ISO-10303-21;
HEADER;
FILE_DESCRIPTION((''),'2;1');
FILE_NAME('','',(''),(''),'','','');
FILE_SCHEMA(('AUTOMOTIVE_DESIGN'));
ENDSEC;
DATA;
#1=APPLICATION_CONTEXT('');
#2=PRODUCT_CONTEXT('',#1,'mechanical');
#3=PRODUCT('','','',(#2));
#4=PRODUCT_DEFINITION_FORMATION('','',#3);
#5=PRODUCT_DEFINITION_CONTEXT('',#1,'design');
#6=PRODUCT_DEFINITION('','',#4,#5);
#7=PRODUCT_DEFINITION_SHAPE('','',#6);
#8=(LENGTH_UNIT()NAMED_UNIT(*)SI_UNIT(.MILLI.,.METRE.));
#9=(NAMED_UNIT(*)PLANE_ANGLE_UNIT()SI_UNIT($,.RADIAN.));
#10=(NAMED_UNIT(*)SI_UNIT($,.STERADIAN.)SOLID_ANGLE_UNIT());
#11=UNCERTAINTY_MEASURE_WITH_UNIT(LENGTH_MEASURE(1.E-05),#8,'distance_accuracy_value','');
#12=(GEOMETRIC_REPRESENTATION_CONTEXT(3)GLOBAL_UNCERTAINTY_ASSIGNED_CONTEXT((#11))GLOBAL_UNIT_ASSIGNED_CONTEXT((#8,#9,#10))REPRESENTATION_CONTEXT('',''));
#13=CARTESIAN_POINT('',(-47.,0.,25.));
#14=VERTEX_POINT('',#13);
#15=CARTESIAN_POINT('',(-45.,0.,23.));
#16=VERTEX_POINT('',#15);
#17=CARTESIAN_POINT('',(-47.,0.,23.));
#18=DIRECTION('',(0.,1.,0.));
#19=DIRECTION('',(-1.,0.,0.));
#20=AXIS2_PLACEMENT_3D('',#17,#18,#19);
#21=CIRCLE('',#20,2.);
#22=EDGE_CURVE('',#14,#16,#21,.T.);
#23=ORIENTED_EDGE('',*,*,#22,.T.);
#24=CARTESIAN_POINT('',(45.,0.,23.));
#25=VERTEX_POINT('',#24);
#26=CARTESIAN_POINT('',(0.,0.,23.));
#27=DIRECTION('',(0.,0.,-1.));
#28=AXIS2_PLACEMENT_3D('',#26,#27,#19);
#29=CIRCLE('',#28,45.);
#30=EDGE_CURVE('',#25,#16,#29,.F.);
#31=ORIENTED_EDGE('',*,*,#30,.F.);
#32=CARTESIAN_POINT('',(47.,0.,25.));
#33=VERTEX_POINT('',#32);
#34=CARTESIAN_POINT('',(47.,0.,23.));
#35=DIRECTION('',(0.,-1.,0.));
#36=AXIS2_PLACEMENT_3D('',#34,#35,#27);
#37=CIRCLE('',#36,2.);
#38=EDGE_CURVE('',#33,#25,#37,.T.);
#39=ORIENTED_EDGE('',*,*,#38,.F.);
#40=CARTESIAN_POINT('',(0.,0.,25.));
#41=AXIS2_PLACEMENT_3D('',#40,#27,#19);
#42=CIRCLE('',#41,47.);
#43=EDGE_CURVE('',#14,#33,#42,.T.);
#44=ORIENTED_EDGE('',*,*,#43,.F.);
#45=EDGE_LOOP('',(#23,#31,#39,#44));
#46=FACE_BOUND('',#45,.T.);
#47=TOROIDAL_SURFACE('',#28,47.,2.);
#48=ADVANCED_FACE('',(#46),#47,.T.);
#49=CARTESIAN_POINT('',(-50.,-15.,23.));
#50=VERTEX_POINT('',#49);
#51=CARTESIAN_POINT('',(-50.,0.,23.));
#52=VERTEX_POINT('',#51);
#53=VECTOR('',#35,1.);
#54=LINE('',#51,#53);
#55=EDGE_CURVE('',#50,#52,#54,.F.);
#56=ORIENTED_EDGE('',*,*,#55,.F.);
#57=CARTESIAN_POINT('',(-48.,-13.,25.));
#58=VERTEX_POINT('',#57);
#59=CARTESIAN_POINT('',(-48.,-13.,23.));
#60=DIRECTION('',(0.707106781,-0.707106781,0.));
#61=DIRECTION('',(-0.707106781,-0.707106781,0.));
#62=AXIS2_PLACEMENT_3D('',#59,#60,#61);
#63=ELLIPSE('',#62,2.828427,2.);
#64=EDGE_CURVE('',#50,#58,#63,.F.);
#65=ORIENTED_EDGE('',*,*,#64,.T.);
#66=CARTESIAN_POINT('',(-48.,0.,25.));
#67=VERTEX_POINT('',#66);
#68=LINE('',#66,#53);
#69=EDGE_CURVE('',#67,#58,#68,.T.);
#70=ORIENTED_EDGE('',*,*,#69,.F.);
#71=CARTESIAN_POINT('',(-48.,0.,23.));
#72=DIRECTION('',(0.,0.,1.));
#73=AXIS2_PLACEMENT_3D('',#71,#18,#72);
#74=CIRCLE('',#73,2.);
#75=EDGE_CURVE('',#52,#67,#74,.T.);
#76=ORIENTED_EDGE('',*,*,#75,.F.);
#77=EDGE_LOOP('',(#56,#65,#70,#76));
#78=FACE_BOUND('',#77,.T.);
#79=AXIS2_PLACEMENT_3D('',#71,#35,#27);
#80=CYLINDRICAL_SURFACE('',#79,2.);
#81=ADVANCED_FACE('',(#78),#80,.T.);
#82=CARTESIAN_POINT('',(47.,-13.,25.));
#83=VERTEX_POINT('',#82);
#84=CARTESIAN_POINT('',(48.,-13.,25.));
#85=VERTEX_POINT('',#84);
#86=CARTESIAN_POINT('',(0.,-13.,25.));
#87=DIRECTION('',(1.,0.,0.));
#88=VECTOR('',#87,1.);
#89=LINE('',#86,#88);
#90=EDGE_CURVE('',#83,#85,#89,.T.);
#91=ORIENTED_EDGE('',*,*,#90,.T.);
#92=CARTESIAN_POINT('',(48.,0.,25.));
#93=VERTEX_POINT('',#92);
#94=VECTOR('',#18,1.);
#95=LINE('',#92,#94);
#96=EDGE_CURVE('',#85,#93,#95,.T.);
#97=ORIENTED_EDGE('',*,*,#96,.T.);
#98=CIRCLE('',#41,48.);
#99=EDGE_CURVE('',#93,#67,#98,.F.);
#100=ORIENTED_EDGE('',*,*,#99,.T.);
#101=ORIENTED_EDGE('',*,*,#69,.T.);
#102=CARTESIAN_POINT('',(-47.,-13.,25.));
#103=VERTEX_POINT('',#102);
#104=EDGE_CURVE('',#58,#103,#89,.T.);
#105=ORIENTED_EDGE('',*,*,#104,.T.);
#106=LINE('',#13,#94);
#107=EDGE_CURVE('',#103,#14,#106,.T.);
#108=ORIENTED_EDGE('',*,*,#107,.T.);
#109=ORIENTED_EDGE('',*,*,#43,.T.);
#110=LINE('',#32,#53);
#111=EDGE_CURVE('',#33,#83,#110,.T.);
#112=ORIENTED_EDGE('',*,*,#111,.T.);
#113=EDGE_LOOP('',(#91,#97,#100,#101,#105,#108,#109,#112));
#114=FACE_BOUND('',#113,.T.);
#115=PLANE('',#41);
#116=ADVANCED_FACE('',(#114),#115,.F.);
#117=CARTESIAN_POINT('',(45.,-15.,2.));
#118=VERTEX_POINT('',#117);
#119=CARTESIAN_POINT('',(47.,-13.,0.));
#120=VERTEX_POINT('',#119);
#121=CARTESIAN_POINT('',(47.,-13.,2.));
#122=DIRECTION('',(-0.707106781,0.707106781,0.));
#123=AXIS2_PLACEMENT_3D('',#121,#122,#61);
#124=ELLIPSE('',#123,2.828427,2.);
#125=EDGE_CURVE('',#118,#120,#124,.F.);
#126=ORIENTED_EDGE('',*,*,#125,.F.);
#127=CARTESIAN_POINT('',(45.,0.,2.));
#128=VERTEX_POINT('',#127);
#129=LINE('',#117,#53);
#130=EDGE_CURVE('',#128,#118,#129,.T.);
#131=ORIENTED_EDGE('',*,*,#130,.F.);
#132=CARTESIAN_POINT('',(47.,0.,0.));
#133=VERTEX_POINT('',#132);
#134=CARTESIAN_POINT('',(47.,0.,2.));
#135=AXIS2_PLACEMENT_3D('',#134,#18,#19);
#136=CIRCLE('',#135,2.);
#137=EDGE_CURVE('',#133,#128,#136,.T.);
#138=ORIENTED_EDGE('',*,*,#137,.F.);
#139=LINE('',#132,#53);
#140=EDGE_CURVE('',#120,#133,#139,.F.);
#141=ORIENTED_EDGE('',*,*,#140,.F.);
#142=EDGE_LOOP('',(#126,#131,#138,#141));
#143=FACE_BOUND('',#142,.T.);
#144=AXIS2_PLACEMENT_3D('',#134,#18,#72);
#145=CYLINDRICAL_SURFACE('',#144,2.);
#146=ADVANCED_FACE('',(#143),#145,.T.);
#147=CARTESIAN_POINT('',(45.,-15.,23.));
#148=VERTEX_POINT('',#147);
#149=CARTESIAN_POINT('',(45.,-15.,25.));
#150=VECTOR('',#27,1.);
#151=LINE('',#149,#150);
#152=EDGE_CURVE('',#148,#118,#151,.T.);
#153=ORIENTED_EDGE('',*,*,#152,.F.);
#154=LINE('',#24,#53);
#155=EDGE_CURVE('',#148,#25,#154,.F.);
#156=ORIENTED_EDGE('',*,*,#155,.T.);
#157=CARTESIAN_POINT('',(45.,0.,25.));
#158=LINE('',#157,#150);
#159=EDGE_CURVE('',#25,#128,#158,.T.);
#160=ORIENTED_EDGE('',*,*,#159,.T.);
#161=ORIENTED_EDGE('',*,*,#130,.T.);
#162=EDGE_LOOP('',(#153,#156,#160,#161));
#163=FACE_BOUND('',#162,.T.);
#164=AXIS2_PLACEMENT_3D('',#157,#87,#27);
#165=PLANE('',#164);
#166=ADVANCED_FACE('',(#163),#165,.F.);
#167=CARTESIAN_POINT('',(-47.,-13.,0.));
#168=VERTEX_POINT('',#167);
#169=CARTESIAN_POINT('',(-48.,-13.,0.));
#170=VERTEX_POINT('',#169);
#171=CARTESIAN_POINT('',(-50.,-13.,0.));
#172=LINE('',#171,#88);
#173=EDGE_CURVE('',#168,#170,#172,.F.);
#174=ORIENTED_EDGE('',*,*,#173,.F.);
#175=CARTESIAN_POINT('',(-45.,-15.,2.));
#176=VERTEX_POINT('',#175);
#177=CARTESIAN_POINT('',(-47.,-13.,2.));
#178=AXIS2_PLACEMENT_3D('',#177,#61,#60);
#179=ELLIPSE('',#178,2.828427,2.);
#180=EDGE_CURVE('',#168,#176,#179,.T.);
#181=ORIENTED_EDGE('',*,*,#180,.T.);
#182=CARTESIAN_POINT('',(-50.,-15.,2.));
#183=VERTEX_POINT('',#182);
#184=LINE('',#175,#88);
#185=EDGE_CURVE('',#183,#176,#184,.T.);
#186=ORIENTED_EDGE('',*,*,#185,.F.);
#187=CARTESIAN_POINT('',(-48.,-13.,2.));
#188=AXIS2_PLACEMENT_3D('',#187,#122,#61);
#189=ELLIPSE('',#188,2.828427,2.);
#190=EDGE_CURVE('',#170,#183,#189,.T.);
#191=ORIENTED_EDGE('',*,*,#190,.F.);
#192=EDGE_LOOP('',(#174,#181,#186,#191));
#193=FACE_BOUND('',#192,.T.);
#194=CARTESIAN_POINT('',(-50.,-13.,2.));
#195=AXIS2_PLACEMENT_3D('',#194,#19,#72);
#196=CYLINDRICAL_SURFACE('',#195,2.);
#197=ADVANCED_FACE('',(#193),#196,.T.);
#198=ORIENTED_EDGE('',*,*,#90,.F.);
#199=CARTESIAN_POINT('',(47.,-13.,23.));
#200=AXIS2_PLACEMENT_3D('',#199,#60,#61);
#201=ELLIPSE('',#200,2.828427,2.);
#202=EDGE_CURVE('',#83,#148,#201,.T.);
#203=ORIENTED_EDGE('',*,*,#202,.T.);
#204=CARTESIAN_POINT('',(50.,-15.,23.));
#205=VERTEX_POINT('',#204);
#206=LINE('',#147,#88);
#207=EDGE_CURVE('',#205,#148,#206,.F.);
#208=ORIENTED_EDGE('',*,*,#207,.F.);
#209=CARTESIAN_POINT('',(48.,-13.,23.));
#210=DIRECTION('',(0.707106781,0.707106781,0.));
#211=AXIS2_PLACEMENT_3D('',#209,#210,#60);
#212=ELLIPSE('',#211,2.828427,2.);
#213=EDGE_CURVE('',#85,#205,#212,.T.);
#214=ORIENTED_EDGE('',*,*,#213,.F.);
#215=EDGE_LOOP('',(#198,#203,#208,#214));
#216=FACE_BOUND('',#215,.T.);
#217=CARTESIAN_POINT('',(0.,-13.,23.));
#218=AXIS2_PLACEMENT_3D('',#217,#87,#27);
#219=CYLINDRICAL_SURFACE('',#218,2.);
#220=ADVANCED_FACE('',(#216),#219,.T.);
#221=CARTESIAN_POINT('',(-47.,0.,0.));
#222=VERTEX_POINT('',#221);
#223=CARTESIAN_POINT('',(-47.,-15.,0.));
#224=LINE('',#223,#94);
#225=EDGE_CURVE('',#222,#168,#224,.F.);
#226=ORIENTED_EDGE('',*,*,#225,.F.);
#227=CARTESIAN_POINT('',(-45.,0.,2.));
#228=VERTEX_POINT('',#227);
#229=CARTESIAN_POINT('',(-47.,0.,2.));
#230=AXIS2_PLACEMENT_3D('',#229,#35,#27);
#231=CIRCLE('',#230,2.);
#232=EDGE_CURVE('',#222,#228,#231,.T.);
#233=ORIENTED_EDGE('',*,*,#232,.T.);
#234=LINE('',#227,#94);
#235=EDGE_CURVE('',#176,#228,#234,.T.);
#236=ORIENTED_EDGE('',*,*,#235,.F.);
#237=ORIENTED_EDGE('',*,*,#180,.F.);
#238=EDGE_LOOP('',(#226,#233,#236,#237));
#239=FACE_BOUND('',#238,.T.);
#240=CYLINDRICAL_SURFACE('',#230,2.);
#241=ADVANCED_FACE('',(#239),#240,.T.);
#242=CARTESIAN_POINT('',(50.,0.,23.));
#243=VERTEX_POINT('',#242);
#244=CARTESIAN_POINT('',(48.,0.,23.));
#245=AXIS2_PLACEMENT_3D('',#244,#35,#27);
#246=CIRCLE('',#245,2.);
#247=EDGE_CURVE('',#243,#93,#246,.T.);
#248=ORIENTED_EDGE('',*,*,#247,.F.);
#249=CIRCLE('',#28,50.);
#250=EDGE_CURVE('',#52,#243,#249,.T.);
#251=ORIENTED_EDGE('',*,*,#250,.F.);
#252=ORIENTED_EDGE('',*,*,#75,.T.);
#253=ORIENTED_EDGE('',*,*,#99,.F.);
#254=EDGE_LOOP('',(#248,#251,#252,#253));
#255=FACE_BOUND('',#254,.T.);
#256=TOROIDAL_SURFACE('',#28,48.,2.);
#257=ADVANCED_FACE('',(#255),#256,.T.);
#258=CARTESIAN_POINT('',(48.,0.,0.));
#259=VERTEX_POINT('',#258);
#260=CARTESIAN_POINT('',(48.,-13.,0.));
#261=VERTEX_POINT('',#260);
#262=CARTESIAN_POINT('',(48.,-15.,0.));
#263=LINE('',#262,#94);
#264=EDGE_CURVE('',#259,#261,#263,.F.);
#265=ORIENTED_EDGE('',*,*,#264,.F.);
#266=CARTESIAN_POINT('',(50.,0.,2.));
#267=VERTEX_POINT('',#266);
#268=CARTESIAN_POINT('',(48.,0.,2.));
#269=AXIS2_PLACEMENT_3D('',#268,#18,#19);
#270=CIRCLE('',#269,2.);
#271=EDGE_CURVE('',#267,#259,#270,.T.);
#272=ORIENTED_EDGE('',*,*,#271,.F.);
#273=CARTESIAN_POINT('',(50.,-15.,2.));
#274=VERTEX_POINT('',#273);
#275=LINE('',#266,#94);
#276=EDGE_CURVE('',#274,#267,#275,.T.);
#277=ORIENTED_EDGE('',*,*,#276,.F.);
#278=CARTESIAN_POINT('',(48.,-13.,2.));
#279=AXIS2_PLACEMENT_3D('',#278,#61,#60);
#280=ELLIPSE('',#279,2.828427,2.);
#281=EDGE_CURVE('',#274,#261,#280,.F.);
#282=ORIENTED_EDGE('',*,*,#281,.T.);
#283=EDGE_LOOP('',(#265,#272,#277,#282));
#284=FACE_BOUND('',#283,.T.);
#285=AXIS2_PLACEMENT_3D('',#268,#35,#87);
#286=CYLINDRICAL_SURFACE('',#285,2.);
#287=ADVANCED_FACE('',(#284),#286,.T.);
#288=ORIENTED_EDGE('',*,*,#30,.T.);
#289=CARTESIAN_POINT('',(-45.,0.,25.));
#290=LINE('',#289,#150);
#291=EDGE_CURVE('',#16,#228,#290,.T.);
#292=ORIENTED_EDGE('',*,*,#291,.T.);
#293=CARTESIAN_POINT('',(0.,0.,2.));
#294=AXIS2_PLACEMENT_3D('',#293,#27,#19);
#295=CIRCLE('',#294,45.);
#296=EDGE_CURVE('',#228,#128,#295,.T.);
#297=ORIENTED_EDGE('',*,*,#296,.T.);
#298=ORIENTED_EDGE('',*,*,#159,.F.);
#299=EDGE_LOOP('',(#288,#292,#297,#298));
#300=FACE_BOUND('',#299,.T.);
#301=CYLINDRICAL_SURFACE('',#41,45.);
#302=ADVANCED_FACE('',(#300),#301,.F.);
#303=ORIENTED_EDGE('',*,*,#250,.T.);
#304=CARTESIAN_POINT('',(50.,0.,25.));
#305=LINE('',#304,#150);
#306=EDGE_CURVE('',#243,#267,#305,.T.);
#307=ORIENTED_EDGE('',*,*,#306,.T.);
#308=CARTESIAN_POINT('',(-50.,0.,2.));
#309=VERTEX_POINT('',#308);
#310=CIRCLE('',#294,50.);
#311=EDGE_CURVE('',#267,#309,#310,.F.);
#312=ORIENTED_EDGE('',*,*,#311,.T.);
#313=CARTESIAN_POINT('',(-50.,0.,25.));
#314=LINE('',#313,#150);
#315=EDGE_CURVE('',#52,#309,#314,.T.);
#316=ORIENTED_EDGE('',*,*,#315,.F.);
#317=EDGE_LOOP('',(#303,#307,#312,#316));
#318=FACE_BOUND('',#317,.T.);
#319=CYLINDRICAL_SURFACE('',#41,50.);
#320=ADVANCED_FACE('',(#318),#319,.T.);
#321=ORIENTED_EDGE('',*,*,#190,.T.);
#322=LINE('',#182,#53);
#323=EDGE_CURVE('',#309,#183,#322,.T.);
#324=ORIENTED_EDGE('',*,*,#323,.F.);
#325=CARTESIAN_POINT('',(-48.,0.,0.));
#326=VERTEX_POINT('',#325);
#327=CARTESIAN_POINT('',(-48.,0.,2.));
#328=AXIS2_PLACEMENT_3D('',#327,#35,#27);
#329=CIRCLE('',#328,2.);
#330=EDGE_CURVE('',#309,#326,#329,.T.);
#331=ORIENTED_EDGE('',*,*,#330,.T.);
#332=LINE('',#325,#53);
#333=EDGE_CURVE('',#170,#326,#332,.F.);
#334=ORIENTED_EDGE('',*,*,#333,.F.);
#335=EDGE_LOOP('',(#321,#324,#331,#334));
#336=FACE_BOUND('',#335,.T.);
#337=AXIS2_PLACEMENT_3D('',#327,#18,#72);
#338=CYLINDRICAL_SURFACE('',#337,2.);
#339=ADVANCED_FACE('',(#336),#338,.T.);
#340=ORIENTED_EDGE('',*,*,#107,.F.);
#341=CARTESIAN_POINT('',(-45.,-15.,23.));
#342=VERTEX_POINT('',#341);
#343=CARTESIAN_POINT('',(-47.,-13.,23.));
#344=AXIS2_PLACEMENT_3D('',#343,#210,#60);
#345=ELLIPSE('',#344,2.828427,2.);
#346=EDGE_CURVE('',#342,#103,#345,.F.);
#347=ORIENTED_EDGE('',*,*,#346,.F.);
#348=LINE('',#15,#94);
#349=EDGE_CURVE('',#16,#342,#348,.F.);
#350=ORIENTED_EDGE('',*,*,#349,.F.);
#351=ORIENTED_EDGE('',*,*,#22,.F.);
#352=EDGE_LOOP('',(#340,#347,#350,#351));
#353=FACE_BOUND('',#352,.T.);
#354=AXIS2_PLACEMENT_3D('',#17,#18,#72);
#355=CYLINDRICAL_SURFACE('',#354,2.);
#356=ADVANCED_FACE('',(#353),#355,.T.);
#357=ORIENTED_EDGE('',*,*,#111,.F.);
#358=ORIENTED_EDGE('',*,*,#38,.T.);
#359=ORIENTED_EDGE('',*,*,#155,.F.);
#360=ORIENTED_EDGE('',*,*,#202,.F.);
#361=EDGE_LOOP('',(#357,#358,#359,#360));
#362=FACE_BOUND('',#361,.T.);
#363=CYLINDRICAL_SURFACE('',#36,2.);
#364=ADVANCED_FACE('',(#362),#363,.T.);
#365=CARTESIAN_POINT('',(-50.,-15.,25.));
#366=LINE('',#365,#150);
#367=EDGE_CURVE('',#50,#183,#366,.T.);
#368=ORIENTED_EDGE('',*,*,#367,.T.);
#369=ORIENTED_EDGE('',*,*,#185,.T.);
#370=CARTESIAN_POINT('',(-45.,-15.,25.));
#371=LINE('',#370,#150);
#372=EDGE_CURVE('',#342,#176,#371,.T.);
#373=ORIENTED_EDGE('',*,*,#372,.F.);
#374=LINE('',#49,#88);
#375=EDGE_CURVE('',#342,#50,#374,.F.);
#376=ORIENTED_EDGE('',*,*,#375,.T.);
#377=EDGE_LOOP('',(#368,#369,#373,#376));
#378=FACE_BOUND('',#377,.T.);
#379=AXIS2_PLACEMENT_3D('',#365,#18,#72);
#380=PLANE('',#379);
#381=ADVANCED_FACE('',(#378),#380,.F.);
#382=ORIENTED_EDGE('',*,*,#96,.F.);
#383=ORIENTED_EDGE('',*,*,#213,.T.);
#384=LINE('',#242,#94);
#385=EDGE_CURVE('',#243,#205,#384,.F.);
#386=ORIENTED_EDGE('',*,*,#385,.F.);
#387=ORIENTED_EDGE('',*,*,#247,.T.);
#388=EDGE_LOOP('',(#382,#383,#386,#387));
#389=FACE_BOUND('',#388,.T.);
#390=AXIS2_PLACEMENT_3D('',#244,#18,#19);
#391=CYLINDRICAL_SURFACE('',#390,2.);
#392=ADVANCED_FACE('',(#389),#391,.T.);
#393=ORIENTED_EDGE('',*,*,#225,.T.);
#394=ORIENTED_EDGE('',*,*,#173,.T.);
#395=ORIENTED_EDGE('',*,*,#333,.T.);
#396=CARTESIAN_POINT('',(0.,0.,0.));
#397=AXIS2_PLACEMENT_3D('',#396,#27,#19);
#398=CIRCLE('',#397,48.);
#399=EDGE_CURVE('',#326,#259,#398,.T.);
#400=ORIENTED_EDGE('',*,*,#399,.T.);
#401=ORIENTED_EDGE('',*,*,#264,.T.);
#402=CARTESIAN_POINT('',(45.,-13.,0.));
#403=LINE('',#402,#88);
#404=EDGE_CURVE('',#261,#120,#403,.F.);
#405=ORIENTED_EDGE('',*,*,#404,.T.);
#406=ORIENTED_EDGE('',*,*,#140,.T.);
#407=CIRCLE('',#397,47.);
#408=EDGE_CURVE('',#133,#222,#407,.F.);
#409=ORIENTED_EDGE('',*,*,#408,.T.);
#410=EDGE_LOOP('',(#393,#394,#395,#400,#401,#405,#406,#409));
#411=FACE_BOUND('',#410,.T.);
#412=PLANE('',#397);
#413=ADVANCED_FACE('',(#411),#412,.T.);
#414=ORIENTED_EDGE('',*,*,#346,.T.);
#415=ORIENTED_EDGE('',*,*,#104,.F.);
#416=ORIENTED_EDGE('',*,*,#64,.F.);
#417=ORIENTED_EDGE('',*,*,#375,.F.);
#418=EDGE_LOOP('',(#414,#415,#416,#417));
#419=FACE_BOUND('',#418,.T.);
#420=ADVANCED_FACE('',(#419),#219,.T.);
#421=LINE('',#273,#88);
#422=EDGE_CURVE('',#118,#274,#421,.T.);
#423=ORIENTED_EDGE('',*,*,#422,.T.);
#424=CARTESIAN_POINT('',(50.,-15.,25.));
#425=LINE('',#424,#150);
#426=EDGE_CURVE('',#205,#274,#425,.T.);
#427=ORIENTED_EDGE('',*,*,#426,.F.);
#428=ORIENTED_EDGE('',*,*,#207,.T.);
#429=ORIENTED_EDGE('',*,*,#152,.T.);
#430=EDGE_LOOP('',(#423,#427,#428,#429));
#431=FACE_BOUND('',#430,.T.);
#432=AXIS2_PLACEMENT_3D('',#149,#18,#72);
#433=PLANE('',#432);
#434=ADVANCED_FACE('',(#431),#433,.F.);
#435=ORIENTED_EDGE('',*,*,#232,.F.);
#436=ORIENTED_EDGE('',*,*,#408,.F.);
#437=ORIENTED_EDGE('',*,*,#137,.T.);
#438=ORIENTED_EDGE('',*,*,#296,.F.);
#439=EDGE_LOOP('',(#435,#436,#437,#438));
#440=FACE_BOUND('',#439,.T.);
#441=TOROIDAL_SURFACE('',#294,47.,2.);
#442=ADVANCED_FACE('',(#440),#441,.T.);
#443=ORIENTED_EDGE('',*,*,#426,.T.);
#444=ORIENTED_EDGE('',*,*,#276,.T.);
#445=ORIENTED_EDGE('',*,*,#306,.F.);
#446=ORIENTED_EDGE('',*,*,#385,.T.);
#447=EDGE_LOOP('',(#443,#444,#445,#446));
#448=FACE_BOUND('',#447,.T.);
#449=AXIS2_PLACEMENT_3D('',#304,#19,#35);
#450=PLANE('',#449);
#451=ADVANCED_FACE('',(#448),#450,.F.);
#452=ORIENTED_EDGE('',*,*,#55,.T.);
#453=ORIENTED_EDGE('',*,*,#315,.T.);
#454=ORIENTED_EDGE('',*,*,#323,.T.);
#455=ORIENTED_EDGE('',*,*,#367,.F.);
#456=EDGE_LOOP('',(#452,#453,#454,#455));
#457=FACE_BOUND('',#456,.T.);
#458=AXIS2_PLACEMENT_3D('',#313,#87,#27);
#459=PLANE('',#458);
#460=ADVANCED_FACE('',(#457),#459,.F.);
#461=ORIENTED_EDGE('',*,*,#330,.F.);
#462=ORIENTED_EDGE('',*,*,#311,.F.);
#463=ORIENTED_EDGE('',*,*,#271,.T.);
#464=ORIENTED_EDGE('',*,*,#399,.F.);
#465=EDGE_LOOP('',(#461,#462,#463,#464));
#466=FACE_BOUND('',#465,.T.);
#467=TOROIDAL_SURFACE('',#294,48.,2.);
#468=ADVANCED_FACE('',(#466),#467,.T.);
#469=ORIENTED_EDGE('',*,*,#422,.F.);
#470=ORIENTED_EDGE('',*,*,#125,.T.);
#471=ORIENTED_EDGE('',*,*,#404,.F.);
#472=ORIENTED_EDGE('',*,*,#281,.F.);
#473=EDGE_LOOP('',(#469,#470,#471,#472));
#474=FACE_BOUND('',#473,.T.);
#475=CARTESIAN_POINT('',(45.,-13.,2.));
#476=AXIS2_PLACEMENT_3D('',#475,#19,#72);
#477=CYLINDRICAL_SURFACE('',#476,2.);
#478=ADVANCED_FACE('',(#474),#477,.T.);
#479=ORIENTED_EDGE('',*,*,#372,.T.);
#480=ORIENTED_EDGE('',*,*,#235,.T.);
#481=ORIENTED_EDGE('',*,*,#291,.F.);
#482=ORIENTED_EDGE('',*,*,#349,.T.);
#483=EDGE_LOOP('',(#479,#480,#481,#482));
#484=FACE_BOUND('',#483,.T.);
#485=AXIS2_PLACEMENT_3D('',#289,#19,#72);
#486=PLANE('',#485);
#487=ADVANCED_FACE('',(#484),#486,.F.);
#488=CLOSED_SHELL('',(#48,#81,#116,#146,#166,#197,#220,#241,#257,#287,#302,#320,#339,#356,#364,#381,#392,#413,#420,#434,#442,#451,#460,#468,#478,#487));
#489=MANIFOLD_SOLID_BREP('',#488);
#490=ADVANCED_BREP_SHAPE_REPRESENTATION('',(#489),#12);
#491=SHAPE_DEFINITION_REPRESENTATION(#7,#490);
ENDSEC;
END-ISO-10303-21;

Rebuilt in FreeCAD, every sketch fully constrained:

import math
import FreeCAD as App
import Part
import Sketcher
Q = App.Units.Quantity


def edges_at(feature, points):
    """Names of the edges that pass closest to the given points."""
    edges = feature.Shape.Edges
    near = lambda p: min(range(len(edges)), key=lambda i: edges[i].distToShape(Part.Vertex(*p))[0])
    return sorted({f"Edge{near(p) + 1}" for p in points})

doc = App.newDocument("Part")
params = doc.addObject("Spreadsheet::Sheet", "Params")
for row, (alias, value) in enumerate([
    ("sketch1_radius", "45 mm"),
    ("sketch1_radius2", "50 mm"),
    ("sketch1_height", "15 mm"),
    ("pad1_length", "25 mm"),
    ("fillet_radius", "2 mm"),
], start=1):
    params.set(f"A{row}", alias)
    params.set(f"B{row}", "=" + value)
    params.setAlias(f"B{row}", alias)

body = doc.addObject("PartDesign::Body", "Body")

sketch1 = body.newObject("Sketcher::SketchObject", "Sketch")
sketch1.AttachmentSupport = (doc.getObject("XY_Plane"), [""])
sketch1.MapMode = "FlatFace"
sketch1.addGeometry([
    Part.LineSegment(App.Vector(-50, 0, 0), App.Vector(-50, -15, 0)),
    Part.LineSegment(App.Vector(-50, -15, 0), App.Vector(-45, -15, 0)),
    Part.LineSegment(App.Vector(-45, -15, 0), App.Vector(-45, 0, 0)),
    Part.ArcOfCircle(Part.Circle(App.Vector(0, 0, 0), App.Vector(0, 0, 1), 45), math.radians(0), math.radians(180)),
    Part.LineSegment(App.Vector(45, 0, 0), App.Vector(45, -15, 0)),
    Part.LineSegment(App.Vector(45, -15, 0), App.Vector(50, -15, 0)),
    Part.LineSegment(App.Vector(50, -15, 0), App.Vector(50, 0, 0)),
    Part.ArcOfCircle(Part.Circle(App.Vector(0, 0, 0), App.Vector(0, 0, 1), 50), math.radians(0), math.radians(180)),
], False)
sketch1.addConstraint([
    Sketcher.Constraint("Coincident", 0, 2, 1, 1),
    Sketcher.Constraint("Coincident", 1, 2, 2, 1),
    Sketcher.Constraint("Tangent", 2, 2, 3, 2),
    Sketcher.Constraint("Tangent", 3, 1, 4, 1),
    Sketcher.Constraint("Coincident", 4, 2, 5, 1),
    Sketcher.Constraint("Coincident", 5, 2, 6, 1),
    Sketcher.Constraint("Tangent", 6, 2, 7, 1),
    Sketcher.Constraint("Tangent", 7, 2, 0, 1),
    Sketcher.Constraint("Vertical", 0),
    Sketcher.Constraint("Horizontal", 1),
    Sketcher.Constraint("Vertical", 2),
    Sketcher.Constraint("Vertical", 4),
    Sketcher.Constraint("Horizontal", 5),
    Sketcher.Constraint("Vertical", 6),
    Sketcher.Constraint("Coincident", 3, 3, -1, 1),
    Sketcher.Constraint("Coincident", 7, 3, -1, 1),
    Sketcher.Constraint("Horizontal", 1, 2, 4, 2),
    Sketcher.Constraint("Radius", 3, Q("45 mm")),
    Sketcher.Constraint("Radius", 7, Q("50 mm")),
    Sketcher.Constraint("DistanceY", 0, 2, 0, 1, Q("15 mm")),
])
sketch1.setExpression("Constraints[17]", "Params.sketch1_radius")
sketch1.setExpression("Constraints[18]", "Params.sketch1_radius2")
sketch1.setExpression("Constraints[19]", "Params.sketch1_height")
pad1 = body.newObject("PartDesign::Pad", "Pad")
pad1.Profile = sketch1
pad1.setExpression("Length", "Params.pad1_length")
doc.recompute()

fillet = body.newObject("PartDesign::Fillet", "Fillet")
fillet.Base = (pad1, edges_at(pad1, [
    (-45, -7.5, 0),
    (-47.5, -15, 0),
    (-50, -7.5, 0),
    (0, 50, 0),
    (-47.5, -15, 25),
    (-45, -7.5, 25),
    (0, 45, 25),
    (45, -7.5, 25),
    (47.5, -15, 25),
    (50, -7.5, 25),
    (0, 50, 25),
    (50, -7.5, 0),
    (-50, -7.5, 25),
    (47.5, -15, 0),
    (45, -7.5, 0),
    (0, 45, 0),
]))
fillet.setExpression("Radius", "Params.fillet_radius")

doc.recompute()
